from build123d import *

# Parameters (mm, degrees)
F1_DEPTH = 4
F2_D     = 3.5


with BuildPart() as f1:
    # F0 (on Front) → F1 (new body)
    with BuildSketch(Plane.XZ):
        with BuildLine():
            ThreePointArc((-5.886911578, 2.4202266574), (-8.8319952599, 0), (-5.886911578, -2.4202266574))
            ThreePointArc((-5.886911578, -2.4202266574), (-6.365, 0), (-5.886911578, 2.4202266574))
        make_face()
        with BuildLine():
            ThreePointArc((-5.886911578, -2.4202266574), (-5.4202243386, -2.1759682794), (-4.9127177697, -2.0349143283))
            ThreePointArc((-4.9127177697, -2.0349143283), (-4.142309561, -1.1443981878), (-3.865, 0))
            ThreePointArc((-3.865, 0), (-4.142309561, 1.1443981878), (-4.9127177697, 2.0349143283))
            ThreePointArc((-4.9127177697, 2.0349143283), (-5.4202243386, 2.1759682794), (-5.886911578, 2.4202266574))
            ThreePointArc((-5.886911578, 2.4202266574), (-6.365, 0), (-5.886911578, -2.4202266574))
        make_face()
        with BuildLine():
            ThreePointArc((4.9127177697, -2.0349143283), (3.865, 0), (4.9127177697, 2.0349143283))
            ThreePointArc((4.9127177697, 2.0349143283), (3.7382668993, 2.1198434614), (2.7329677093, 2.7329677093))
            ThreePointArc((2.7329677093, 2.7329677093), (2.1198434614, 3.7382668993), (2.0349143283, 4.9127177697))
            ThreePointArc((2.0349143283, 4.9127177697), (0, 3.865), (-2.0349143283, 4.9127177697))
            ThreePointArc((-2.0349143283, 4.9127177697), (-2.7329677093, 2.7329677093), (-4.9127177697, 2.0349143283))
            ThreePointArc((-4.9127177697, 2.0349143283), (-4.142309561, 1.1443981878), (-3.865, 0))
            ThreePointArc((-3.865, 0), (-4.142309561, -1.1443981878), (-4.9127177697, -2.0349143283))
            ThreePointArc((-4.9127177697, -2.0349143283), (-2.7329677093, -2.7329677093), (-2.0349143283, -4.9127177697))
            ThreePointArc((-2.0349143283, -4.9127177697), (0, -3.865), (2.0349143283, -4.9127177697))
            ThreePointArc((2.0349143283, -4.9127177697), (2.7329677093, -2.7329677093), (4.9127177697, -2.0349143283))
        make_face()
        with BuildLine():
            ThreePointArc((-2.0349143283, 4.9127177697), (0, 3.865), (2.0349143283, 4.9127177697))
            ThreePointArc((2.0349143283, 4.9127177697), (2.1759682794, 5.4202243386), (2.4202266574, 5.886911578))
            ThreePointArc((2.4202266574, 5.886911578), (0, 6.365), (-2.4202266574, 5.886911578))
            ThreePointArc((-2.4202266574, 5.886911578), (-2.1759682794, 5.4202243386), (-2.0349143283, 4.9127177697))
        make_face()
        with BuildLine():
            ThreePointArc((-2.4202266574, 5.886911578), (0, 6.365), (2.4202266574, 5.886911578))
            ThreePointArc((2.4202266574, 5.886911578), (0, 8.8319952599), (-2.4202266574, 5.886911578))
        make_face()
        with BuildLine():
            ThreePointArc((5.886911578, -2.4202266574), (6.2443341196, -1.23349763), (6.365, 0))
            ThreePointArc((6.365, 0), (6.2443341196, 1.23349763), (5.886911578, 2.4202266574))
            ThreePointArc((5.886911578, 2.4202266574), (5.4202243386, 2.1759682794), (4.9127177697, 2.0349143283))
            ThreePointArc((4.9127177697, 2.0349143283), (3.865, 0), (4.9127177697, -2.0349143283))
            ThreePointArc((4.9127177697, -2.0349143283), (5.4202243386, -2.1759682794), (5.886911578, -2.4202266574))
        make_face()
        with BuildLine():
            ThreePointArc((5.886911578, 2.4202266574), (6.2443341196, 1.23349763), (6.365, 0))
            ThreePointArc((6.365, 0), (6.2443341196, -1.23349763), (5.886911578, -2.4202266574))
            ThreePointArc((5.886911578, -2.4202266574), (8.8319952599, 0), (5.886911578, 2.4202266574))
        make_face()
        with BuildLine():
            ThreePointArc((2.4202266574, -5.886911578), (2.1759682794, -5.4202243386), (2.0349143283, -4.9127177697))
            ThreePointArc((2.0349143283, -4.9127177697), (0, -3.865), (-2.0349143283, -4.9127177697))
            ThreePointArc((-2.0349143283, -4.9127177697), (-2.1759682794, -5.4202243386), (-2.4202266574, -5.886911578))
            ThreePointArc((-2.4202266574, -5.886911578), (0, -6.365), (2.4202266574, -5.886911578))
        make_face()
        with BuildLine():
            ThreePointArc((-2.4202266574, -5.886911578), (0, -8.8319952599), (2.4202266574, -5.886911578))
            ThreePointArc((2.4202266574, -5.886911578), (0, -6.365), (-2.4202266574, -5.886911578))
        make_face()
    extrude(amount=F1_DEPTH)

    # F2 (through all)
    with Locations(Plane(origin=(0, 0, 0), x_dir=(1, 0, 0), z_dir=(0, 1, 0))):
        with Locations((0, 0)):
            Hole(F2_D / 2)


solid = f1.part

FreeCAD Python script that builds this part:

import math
import FreeCAD as App
import Part
import Sketcher

V = App.Vector
Q = App.Units.Quantity

doc = App.newDocument("Part")
body = doc.addObject("PartDesign::Body", "Body")

# Sketch on XZ plane
sketch1 = body.newObject("Sketcher::SketchObject", "Sketch")
sketch1.AttachmentSupport = (doc.getObject("XZ_Plane"), [""])
sketch1.MapMode = "FlatFace"
sketch1.addGeometry([
    Part.ArcOfCircle(Part.Circle(V(-6.365, 0, 0), V(0, 0, 1), 2.466995), math.radians(78.82573), math.radians(281.17427)),  # 0
    Part.ArcOfCircle(Part.Circle(V(-4.500735, -4.500735, 0), V(0, 0, 1), 2.5), math.radians(99.485224), math.radians(123.67427)),  # 1
    Part.ArcOfCircle(Part.Circle(V(-4.500735, -4.500735, 0), V(0, 0, 1), 2.5), math.radians(-9.485224), math.radians(99.485224)),  # 2
    Part.ArcOfCircle(Part.Circle(V(-4.500735, -4.500735, 0), V(0, 0, 1), 2.5), math.radians(-33.67427), math.radians(-9.485224)),  # 3
    Part.ArcOfCircle(Part.Circle(V(0, -6.365, 0), V(0, 0, 1), 2.466995), math.radians(168.82573), math.radians(371.17427)),  # 4
    Part.ArcOfCircle(Part.Circle(V(4.500735, -4.500735, 0), V(0, 0, 1), 2.5), math.radians(-170.514776), math.radians(-146.32573)),  # 5
    Part.ArcOfCircle(Part.Circle(V(4.500735, -4.500735, 0), V(0, 0, 1), 2.5), math.radians(80.514776), math.radians(189.485224)),  # 6
    Part.ArcOfCircle(Part.Circle(V(4.500735, -4.500735, 0), V(0, 0, 1), 2.5), math.radians(56.32573), math.radians(80.514776)),  # 7
    Part.ArcOfCircle(Part.Circle(V(6.365, 0, 0), V(0, 0, 1), 2.466995), math.radians(-101.17427), math.radians(101.17427)),  # 8
    Part.ArcOfCircle(Part.Circle(V(4.500735, 4.500735, 0), V(0, 0, 1), 2.5), math.radians(-80.514776), math.radians(-56.32573)),  # 9
    Part.ArcOfCircle(Part.Circle(V(4.500735, 4.500735, 0), V(0, 0, 1), 2.5), math.radians(-135), math.radians(-80.514776)),  # 10
    Part.ArcOfCircle(Part.Circle(V(4.500735, 4.500735, 0), V(0, 0, 1), 2.5), math.radians(170.514776), math.radians(225)),  # 11
    Part.ArcOfCircle(Part.Circle(V(4.500735, 4.500735, 0), V(0, 0, 1), 2.5), math.radians(146.32573), math.radians(170.514776)),  # 12
    Part.ArcOfCircle(Part.Circle(V(0, 6.365, 0), V(0, 0, 1), 2.466995), math.radians(-11.17427), math.radians(191.17427)),  # 13
    Part.ArcOfCircle(Part.Circle(V(-4.500735, 4.500735, 0), V(0, 0, 1), 2.5), math.radians(9.485224), math.radians(33.67427)),  # 14
    Part.ArcOfCircle(Part.Circle(V(-4.500735, 4.500735, 0), V(0, 0, 1), 2.5), math.radians(-99.485224), math.radians(9.485224)),  # 15
    Part.ArcOfCircle(Part.Circle(V(-4.500735, 4.500735, 0), V(0, 0, 1), 2.5), math.radians(-123.67427), math.radians(-99.485224)),  # 16
], False)
sketch1.addConstraint([
    Sketcher.Constraint("Coincident", 0, 2, 1, 2),
    Sketcher.Constraint("Tangent", 1, 1, 2, 2),
    Sketcher.Constraint("Tangent", 2, 1, 3, 2),
    Sketcher.Constraint("Coincident", 3, 1, 4, 1),
    Sketcher.Constraint("Coincident", 4, 2, 5, 2),
    Sketcher.Constraint("Tangent", 5, 1, 6, 2),
    Sketcher.Constraint("Tangent", 6, 1, 7, 2),
    Sketcher.Constraint("Coincident", 7, 1, 8, 1),
    Sketcher.Constraint("Coincident", 8, 2, 9, 2),
    Sketcher.Constraint("Tangent", 9, 1, 10, 2),
    Sketcher.Constraint("Tangent", 10, 1, 11, 2),
    Sketcher.Constraint("Tangent", 11, 1, 12, 2),
    Sketcher.Constraint("Coincident", 12, 1, 13, 1),
    Sketcher.Constraint("Coincident", 13, 2, 14, 2),
    Sketcher.Constraint("Tangent", 14, 1, 15, 2),
    Sketcher.Constraint("Tangent", 15, 1, 16, 2),
    Sketcher.Constraint("Coincident", 16, 1, 0, 1),
    Sketcher.Constraint("Coincident", 3, 3, 1, 3),
    Sketcher.Constraint("Coincident", 7, 3, 5, 3),
    Sketcher.Constraint("Coincident", 11, 3, 9, 3),
    Sketcher.Constraint("Coincident", 16, 3, 14, 3),
    Sketcher.Constraint("Equal", 0, 4),
    Sketcher.Constraint("Equal", 3, 5),
    Sketcher.Constraint("Equal", 4, 8),
    Sketcher.Constraint("Equal", 7, 9),
    Sketcher.Constraint("Equal", 11, 12),
    Sketcher.Constraint("Equal", 8, 13),
    Sketcher.Constraint("Equal", 12, 14),
    Sketcher.Constraint("Symmetric", 0, 3, 8, 3, -1, 1),
    Sketcher.Constraint("Symmetric", 1, 3, 9, 3, -1, 1),
    Sketcher.Constraint("Symmetric", 4, 3, 13, 3, -1, 1),
    Sketcher.Constraint("Symmetric", 5, 3, 14, 3, -1, 1),
    Sketcher.Constraint("Symmetric", 1, 3, 5, 3, -2),
    Sketcher.Constraint("PointOnObject", 0, 3, -1),
    Sketcher.Constraint("PointOnObject", 4, 3, -2),
    Sketcher.Constraint("Horizontal", 2, 1, 5, 1),
    Sketcher.Constraint("Horizontal", 1, 1, 6, 1),
    Sketcher.Constraint("Horizontal", 11, 1, 14, 1),
    Sketcher.Constraint("Horizontal", 9, 1, 15, 1),
    Sketcher.Constraint("Vertical", 6, 1, 9, 1),
    Sketcher.Constraint("Vertical", 5, 1, 11, 1),
    Sketcher.Constraint("Radius", 1, Q("2.5 mm")),
    Sketcher.Constraint("DistanceX", 0, 3, -1, 1, Q("6.365 mm")),
    Sketcher.Constraint("DistanceY", 4, 3, -1, 1, Q("6.365 mm")),
    Sketcher.Constraint("Radius", 0, Q("2.466995 mm")),
    Sketcher.Constraint("DistanceX", 0, 2, -1, 1, Q("5.886912 mm")),
    Sketcher.Constraint("DistanceY", 3, 1, -1, 1, Q("5.886912 mm")),
    Sketcher.Constraint("DistanceY", 3, 3, 1, 1, Q("2.46582 mm")),
    Sketcher.Constraint("DistanceX", 1, 3, 2, 1, Q("2.46582 mm")),
    Sketcher.Constraint("DistanceX", 10, 1, 9, 1, Q("2.17975 mm")),
])
pad1 = body.newObject("PartDesign::Pad", "Pad")
pad1.Profile = sketch1
pad1.Length = 4

# Sketch on XZ plane
sketch2 = body.newObject("Sketcher::SketchObject", "Sketch001")
sketch2.AttachmentSupport = (doc.getObject("XZ_Plane"), [""])
sketch2.MapMode = "FlatFace"
sketch2.addGeometry(Part.Circle(V(0, 0, 0), V(0, 0, 1), 1.75), False)
sketch2.addConstraint([
    Sketcher.Constraint("Coincident", 0, 3, -1, 1),
    Sketcher.Constraint("Diameter", 0, Q("3.5 mm")),
])
doc.recompute()
hole = body.newObject("PartDesign::Hole", "Hole")
hole.Profile = sketch2
hole.ThreadType = "None"
hole.Diameter = 3.5
hole.DepthType = "ThroughAll"
hole.Reversed = True

doc.recompute()
